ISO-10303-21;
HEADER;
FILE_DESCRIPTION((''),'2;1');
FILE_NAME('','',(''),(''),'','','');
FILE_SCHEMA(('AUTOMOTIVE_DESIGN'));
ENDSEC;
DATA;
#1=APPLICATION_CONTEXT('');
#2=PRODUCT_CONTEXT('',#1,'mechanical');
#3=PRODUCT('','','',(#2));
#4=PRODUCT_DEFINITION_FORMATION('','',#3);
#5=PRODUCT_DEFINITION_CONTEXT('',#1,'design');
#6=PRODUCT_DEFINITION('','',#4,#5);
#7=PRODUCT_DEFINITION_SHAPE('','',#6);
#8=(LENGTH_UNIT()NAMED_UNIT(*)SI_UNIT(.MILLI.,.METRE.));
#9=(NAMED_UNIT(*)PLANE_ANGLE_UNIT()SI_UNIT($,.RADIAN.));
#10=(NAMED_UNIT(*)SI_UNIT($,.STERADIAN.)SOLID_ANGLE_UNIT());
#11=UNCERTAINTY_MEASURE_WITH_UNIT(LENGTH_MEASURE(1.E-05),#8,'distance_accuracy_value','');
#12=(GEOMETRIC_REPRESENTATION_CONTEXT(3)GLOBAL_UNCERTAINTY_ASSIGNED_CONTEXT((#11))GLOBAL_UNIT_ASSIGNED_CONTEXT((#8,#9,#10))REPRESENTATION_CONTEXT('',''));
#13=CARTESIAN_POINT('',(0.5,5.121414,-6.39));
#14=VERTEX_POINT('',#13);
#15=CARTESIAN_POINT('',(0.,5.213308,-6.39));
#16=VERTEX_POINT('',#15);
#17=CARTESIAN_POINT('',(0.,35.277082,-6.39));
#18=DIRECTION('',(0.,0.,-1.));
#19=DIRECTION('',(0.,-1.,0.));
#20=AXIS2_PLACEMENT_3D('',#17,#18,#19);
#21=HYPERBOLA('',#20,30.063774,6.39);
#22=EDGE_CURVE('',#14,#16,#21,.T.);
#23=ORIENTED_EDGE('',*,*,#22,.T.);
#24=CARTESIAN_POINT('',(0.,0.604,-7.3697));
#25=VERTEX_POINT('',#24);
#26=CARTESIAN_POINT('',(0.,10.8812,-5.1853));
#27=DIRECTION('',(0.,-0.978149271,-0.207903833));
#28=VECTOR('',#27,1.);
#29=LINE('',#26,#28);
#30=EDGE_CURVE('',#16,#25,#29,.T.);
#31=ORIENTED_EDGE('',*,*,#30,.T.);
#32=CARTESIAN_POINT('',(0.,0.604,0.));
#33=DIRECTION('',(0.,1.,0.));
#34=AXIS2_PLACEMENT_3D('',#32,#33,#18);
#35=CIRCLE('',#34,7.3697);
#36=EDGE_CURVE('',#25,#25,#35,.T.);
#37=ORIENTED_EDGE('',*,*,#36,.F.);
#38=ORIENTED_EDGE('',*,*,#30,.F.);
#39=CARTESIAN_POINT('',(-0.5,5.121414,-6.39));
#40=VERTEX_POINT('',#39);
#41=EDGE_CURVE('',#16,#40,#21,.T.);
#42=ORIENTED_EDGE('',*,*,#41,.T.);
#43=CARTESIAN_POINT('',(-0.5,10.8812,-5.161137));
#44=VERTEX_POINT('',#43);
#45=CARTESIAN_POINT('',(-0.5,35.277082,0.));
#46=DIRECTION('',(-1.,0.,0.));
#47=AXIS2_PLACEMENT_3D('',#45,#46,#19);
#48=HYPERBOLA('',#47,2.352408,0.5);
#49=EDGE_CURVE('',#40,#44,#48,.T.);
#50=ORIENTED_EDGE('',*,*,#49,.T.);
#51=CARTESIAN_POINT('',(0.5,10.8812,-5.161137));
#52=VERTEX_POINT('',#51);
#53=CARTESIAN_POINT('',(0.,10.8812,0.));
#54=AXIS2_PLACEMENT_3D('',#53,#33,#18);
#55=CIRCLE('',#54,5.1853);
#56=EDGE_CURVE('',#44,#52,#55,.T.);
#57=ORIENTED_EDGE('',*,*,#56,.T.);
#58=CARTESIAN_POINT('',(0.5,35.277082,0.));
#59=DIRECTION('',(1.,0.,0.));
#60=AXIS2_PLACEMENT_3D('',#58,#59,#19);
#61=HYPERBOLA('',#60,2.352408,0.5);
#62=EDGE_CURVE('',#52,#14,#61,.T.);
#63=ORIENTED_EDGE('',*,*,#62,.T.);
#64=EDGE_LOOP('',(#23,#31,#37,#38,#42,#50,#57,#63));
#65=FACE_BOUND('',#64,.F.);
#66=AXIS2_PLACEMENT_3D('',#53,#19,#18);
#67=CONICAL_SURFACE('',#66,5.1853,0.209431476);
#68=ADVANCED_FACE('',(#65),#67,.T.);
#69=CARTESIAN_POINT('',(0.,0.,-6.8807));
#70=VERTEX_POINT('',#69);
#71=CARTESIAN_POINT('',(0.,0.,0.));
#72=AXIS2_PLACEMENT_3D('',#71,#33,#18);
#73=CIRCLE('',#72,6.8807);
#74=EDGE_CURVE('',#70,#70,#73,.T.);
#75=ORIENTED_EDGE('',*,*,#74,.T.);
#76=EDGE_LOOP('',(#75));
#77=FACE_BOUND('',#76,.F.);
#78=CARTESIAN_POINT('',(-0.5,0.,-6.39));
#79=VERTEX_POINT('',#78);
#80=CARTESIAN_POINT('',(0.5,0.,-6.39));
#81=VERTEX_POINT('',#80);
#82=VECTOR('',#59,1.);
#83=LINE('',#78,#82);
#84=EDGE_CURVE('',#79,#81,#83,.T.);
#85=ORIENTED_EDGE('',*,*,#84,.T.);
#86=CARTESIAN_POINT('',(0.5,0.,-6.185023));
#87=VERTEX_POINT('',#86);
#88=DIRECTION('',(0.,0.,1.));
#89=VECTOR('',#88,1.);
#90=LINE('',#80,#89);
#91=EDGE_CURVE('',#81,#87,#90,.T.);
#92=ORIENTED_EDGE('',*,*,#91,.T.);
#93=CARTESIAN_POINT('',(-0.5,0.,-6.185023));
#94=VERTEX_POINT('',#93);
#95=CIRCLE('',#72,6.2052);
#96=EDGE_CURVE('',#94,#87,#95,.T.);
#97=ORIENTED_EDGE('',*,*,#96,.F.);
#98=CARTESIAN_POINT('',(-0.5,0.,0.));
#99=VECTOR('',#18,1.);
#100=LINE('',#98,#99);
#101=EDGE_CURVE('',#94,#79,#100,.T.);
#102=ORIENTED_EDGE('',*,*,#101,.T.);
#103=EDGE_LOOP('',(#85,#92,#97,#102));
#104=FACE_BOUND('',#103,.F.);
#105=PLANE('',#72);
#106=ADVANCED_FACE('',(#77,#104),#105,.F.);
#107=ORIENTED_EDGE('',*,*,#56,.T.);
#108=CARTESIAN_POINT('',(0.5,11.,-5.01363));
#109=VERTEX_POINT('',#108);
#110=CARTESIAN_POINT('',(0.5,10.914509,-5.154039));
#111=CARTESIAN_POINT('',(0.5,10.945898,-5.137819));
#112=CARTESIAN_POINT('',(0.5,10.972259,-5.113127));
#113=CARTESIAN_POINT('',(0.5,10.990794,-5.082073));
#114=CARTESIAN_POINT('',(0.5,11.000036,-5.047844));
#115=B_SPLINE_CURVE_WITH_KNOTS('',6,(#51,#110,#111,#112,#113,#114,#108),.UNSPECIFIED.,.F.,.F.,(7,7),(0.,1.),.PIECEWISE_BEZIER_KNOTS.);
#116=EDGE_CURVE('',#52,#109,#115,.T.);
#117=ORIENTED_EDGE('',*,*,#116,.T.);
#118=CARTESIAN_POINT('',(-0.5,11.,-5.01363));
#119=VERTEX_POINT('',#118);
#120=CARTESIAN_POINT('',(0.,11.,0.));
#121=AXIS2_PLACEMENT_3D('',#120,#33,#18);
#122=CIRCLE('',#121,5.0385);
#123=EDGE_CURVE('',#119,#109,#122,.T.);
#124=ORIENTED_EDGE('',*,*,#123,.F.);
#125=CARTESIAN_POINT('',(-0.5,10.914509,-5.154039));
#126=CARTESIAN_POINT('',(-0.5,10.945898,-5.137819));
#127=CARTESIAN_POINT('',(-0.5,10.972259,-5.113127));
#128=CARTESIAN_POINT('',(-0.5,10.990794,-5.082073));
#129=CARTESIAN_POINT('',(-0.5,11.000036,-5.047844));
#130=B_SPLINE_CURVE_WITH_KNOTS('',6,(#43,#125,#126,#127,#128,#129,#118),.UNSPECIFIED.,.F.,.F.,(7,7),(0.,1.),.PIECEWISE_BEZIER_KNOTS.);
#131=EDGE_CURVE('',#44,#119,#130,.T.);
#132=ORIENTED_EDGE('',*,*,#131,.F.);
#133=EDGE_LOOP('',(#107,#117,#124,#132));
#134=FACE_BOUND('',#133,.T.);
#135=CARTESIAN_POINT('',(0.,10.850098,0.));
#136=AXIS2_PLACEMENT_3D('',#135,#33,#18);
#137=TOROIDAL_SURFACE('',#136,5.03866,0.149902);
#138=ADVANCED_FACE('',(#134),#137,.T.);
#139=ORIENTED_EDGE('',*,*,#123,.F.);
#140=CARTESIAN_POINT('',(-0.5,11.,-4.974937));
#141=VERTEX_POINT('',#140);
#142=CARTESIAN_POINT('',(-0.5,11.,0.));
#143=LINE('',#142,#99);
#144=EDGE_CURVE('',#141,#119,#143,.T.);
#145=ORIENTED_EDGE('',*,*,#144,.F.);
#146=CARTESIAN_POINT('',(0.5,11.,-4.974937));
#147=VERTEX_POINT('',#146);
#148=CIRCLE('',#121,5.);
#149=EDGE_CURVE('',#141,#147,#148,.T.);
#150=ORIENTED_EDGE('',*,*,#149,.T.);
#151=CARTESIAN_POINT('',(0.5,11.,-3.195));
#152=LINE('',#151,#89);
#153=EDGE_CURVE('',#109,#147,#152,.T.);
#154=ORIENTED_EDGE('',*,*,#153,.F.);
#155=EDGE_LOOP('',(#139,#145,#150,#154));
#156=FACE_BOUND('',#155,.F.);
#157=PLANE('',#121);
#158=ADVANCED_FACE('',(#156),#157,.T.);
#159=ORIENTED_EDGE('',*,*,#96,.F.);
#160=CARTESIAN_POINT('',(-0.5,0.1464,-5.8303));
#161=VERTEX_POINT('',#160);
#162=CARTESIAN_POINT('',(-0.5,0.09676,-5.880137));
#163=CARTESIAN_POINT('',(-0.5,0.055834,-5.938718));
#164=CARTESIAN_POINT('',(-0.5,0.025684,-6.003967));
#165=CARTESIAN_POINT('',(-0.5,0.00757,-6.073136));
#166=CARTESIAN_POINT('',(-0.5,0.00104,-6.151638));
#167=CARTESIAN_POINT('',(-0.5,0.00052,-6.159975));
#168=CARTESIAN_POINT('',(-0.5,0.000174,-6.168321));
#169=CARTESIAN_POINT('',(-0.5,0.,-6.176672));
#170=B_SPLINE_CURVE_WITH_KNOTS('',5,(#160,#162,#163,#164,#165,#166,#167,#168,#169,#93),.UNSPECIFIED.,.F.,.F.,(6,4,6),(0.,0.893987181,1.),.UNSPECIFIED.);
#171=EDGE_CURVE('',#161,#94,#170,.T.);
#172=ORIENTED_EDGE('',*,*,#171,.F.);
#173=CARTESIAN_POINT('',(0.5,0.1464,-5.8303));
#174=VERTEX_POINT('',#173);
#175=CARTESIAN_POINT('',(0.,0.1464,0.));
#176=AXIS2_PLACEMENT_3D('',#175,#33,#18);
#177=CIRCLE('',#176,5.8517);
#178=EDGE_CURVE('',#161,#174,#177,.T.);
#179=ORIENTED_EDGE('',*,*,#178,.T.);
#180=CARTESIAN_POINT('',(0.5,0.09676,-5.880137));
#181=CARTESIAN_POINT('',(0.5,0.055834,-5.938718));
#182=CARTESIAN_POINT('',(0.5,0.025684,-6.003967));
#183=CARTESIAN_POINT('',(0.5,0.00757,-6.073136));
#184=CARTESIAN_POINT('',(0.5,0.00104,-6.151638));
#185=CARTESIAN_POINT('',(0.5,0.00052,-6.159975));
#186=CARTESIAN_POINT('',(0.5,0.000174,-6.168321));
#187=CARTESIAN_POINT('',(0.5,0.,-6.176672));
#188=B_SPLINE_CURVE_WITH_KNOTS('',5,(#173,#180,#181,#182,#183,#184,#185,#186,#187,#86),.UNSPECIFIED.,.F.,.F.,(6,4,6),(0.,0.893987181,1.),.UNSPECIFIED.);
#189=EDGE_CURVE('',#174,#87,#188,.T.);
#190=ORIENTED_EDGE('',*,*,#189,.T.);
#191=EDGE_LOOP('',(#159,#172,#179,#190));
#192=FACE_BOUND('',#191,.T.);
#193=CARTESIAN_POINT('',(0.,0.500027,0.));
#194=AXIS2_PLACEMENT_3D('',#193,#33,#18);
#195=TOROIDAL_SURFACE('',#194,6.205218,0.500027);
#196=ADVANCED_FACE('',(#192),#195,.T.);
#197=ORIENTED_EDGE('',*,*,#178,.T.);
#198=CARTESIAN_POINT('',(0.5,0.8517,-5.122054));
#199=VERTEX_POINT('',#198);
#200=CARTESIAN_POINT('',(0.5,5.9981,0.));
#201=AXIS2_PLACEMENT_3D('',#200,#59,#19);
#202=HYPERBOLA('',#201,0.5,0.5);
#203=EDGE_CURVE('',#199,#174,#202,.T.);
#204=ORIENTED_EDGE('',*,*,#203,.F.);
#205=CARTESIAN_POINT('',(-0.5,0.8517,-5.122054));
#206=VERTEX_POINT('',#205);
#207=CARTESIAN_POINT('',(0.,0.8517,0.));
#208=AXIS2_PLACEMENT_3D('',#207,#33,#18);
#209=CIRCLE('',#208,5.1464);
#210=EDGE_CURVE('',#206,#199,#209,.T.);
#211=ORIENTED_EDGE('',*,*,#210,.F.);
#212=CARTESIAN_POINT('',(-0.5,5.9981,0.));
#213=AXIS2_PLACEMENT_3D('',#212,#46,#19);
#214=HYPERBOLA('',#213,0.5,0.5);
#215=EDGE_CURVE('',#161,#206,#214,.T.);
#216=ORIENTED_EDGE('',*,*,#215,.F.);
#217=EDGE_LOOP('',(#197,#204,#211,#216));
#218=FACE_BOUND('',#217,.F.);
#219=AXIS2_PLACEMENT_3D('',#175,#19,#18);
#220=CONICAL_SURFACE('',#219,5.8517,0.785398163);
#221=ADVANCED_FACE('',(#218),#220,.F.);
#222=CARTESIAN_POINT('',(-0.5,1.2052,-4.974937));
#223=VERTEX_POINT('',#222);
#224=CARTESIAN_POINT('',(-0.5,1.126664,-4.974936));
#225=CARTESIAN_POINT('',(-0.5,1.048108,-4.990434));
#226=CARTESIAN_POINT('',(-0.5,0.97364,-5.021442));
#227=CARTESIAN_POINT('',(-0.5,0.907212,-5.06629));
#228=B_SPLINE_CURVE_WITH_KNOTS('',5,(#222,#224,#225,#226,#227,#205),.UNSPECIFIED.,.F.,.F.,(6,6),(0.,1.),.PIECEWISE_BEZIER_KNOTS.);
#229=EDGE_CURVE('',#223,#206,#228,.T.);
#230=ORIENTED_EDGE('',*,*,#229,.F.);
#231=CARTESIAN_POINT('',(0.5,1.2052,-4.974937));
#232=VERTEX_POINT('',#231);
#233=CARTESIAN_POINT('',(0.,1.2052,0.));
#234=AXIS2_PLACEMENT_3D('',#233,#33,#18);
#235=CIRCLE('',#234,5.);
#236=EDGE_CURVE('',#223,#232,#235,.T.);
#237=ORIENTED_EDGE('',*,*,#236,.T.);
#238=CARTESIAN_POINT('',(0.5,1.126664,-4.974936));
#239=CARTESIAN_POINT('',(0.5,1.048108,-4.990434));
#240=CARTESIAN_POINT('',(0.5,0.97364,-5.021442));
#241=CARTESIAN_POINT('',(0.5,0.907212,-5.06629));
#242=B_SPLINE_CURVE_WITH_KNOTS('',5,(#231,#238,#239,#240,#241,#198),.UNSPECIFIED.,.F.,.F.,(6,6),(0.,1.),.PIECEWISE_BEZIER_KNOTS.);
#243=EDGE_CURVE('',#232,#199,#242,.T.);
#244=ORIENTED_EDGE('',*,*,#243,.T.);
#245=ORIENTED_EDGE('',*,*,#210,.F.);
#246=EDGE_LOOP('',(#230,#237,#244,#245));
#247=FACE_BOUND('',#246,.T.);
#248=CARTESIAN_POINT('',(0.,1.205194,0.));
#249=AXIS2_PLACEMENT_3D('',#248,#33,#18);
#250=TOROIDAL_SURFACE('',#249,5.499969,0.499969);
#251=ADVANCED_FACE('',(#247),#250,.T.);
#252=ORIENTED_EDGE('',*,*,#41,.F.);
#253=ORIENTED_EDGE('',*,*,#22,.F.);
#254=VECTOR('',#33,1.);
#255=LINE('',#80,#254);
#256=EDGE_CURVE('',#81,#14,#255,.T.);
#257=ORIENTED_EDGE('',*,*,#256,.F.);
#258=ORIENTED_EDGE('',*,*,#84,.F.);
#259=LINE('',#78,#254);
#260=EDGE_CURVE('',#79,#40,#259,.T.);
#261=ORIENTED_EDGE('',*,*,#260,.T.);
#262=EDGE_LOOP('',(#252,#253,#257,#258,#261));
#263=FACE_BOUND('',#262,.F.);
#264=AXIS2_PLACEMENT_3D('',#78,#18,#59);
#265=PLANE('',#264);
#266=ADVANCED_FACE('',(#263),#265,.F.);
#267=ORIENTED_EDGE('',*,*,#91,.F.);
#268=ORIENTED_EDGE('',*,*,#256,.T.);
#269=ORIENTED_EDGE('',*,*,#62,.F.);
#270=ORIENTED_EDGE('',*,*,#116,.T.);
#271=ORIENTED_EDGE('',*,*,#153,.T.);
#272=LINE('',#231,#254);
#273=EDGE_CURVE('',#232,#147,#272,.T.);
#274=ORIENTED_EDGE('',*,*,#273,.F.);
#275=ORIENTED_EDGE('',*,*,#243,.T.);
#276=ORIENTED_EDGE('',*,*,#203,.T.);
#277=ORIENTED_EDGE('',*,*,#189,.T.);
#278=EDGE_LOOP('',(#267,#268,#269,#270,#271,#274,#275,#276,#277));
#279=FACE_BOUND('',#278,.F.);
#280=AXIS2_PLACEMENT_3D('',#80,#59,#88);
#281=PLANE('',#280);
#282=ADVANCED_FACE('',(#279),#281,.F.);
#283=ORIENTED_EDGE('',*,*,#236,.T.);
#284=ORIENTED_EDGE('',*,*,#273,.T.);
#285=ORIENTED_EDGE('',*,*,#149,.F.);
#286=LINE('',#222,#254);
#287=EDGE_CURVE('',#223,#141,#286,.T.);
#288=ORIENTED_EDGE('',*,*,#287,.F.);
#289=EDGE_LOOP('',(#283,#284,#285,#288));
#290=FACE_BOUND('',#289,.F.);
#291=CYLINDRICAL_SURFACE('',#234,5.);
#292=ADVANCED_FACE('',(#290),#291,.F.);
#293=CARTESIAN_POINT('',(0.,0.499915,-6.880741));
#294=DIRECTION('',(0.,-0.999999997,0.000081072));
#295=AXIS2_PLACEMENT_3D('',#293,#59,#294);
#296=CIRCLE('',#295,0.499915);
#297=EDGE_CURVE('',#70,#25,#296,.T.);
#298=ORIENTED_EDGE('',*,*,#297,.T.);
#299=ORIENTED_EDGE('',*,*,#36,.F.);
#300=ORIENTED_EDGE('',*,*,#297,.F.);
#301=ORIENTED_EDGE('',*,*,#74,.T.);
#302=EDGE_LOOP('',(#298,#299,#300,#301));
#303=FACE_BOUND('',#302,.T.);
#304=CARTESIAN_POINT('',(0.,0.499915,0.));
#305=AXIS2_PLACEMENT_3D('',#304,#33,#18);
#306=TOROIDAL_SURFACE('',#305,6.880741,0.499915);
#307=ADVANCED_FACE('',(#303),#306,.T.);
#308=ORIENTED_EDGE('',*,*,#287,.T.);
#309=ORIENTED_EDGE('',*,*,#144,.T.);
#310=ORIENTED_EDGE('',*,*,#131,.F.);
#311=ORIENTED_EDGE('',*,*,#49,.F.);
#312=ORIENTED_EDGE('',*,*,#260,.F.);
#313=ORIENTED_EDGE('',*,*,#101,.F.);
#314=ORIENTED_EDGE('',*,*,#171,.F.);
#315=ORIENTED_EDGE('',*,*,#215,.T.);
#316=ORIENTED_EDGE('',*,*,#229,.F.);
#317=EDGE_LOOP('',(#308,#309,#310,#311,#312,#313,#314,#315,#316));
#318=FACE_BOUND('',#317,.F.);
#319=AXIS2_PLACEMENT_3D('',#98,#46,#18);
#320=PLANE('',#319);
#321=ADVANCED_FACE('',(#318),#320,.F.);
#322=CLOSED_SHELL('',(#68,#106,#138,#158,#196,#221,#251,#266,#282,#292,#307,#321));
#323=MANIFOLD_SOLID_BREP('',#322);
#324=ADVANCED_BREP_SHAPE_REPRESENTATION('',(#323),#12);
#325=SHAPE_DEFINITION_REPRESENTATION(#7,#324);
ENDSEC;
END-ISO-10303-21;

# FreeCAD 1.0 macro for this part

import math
import FreeCAD as App
import Part
import Sketcher
from FreeCAD import Vector
Q = App.Units.Quantity

doc = App.newDocument("Part")
body = doc.addObject("PartDesign::Body", "Body")

sketch1 = doc.addObject("Sketcher::SketchObject", "Sketch")
body.addObject(sketch1)
sketch1.AttachmentSupport = (doc.YZ_Plane, [""])
sketch1.MapMode = "FlatFace"
sketch1.addGeometry([
    Part.LineSegment(Vector(11, -5.038, 0), Vector(11, -5, 0)),
    Part.LineSegment(Vector(11, -5, 0), Vector(1.205, -5, 0)),
    Part.ArcOfCircle(Part.Circle(Vector(1.205, -5.5, 0), Vector(0, 0, 1), 0.5), math.radians(90), math.radians(135)),
    Part.LineSegment(Vector(0.852, -5.146, 0), Vector(0.146, -5.852, 0)),
    Part.ArcOfCircle(Part.Circle(Vector(0.5, -6.205, 0), Vector(0, 0, 1), 0.5), math.radians(135), math.radians(180)),
    Part.LineSegment(Vector(0, -6.205, 0), Vector(0, -6.881, 0)),
    Part.ArcOfCircle(Part.Circle(Vector(0.5, -6.881, 0), Vector(0, 0, 1), 0.5), math.radians(180), math.radians(282)),
    Part.LineSegment(Vector(0.604, -7.37, 0), Vector(10.881, -5.185, 0)),
    Part.ArcOfCircle(Part.Circle(Vector(10.85, -5.038, 0), Vector(0, 0, 1), 0.15), math.radians(-78), math.radians(0)),
], False)
sketch1.addConstraint([
    Sketcher.Constraint("Coincident", 0, 2, 1, 1),
    Sketcher.Constraint("Tangent", 1, 2, 2, 1),
    Sketcher.Constraint("Tangent", 2, 2, 3, 1),
    Sketcher.Constraint("Tangent", 3, 2, 4, 1),
    Sketcher.Constraint("Tangent", 4, 2, 5, 1),
    Sketcher.Constraint("Tangent", 5, 2, 6, 1),
    Sketcher.Constraint("Tangent", 6, 2, 7, 1),
    Sketcher.Constraint("Tangent", 7, 2, 8, 1),
    Sketcher.Constraint("Tangent", 8, 2, 0, 1),
    Sketcher.Constraint("Vertical", 0),
    Sketcher.Constraint("Horizontal", 1),
    Sketcher.Constraint("Vertical", 5),
    Sketcher.Constraint("Equal", 2, 4),
    Sketcher.Constraint("Equal", 4, 6),
    Sketcher.Constraint("PointOnObject", 4, 2, -2),
    Sketcher.Constraint("Radius", 2, Q("0.5 mm")),
    Sketcher.Constraint("Angle", 7, Q("11.9995 deg")),
    Sketcher.Constraint("Radius", 8, Q("0.15 mm")),
    Sketcher.Constraint("DistanceX", -1, 1, 0, 2, Q("11 mm")),
    Sketcher.Constraint("DistanceY", 0, 2, -1, 1, Q("5 mm")),
    Sketcher.Constraint("Angle", 3, Q("-135 deg")),
    Sketcher.Constraint("DistanceX", 1, 2, 1, 1, Q("9.7948 mm")),
    Sketcher.Constraint("DistanceY", 0, 1, 0, 2, Q("0.0385 mm")),
])
revolution = doc.addObject("PartDesign::Revolution", "Revolution")
body.addObject(revolution)
revolution.Profile = sketch1
revolution.ReferenceAxis = (sketch1, ["H_Axis"])
revolution.Angle = 360

sketch2 = doc.addObject("Sketcher::SketchObject", "Sketch001")
body.addObject(sketch2)
sketch2.AttachmentSupport = (doc.XZ_Plane, [""])
sketch2.MapMode = "FlatFace"
sketch2.addGeometry([
    Part.LineSegment(Vector(0.5, -6.4, 0), Vector(-0.5, -6.4, 0)),
    Part.LineSegment(Vector(-0.5, -6.4, 0), Vector(-0.5, 0, 0)),
    Part.LineSegment(Vector(-0.5, 0, 0), Vector(0.5, 0, 0)),
    Part.LineSegment(Vector(0.5, 0, 0), Vector(0.5, -6.4, 0)),
], False)
sketch2.addConstraint([
    Sketcher.Constraint("Coincident", 0, 2, 1, 1),
    Sketcher.Constraint("Coincident", 1, 2, 2, 1),
    Sketcher.Constraint("Coincident", 2, 2, 3, 1),
    Sketcher.Constraint("Coincident", 3, 2, 0, 1),
    Sketcher.Constraint("Horizontal", 0),
    Sketcher.Constraint("Vertical", 1),
    Sketcher.Constraint("Horizontal", 2),
    Sketcher.Constraint("Vertical", 3),
    Sketcher.Constraint("Symmetric", 1, 2, 2, 2, -1, 1),
    Sketcher.Constraint("DistanceX", 0, 2, 0, 1, Q("1 mm")),
    Sketcher.Constraint("DistanceY", 1, 1, 1, 2, Q("6.39 mm")),
])
pocket1 = doc.addObject("PartDesign::Pocket", "Pocket")
body.addObject(pocket1)
pocket1.Profile = sketch2
pocket1.Type = "ThroughAll"

doc.recompute()
